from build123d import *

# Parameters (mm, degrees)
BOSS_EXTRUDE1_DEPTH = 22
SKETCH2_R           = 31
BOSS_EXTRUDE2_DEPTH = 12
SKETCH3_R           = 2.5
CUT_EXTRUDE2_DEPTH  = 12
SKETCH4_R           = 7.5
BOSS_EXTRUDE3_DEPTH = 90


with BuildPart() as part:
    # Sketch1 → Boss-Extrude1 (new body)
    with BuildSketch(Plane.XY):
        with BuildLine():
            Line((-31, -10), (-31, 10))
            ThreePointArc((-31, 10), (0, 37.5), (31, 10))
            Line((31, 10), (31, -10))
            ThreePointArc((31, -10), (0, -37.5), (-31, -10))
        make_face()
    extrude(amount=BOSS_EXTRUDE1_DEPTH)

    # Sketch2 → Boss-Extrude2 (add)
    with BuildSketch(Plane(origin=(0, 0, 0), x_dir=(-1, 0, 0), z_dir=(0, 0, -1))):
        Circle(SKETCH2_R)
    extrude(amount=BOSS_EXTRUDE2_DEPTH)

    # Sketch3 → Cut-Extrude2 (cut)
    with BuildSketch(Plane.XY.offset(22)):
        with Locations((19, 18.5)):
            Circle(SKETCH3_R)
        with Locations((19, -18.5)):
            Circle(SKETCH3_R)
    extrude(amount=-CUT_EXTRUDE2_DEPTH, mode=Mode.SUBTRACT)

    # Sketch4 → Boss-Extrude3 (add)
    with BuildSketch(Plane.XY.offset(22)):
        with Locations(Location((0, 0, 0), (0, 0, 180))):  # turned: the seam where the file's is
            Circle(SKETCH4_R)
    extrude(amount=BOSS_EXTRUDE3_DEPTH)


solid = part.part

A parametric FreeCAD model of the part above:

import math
import FreeCAD as App
import Part
import Sketcher
from FreeCAD import Vector
Q = App.Units.Quantity

doc = App.newDocument("Part")
params = doc.addObject("Spreadsheet::Sheet", "Params")
for row, (alias, value) in enumerate([
    ("sketch1_height", "20 mm"),
    ("pad1_length", "22 mm"),
    ("sketch2_diameter", "62 mm"),
    ("pad2_length", "12 mm"),
    ("sketch3_diameter", "5 mm"),
    ("pocket1_length", "12 mm"),
    ("sketch4_diameter", "15 mm"),
    ("pad3_length", "90 mm"),
], start=1):
    params.set(f"A{row}", alias)
    params.set(f"B{row}", "=" + value)
    params.setAlias(f"B{row}", alias)

body = doc.addObject("PartDesign::Body", "Body")

# Sketch on XY plane
sketch1 = body.newObject("Sketcher::SketchObject", "Sketch")
sketch1.AttachmentSupport = (doc.getObject("XY_Plane"), [""])
sketch1.MapMode = "FlatFace"
sketch1.addGeometry(Part.LineSegment(Vector(-31, 10, 0), Vector(-31, -10, 0)), False)
sketch1.addGeometry(Part.ArcOfCircle(Part.Circle(Vector(0, -6, 0), Vector(0, 0, 1), 31), math.radians(-173), math.radians(-7)), False)
sketch1.addGeometry(Part.LineSegment(Vector(31, -10, 0), Vector(31, 10, 0)), False)
sketch1.addGeometry(Part.ArcOfCircle(Part.Circle(Vector(0, 6, 0), Vector(0, 0, 1), 31), math.radians(7), math.radians(173)), False)
sketch1.addConstraint(Sketcher.Constraint("Coincident", 0, 2, 1, 1))
sketch1.addConstraint(Sketcher.Constraint("Coincident", 1, 2, 2, 1))
sketch1.addConstraint(Sketcher.Constraint("Coincident", 2, 2, 3, 1))
sketch1.addConstraint(Sketcher.Constraint("Coincident", 3, 2, 0, 1))
sketch1.addConstraint(Sketcher.Constraint("Vertical", 0))
sketch1.addConstraint(Sketcher.Constraint("Vertical", 2))
sketch1.addConstraint(Sketcher.Constraint("Equal", 1, 3))
sketch1.addConstraint(Sketcher.Constraint("Symmetric", 1, 3, 3, 3, -1, 1))
sketch1.addConstraint(Sketcher.Constraint("Symmetric", 0, 2, 1, 2, -2))
sketch1.addConstraint(Sketcher.Constraint("DistanceY", 0, 2, 0, 1, Q("20 mm")))
sketch1.addConstraint(Sketcher.Constraint("DistanceX", 0, 2, -1, 1, Q("31 mm")))
sketch1.addConstraint(Sketcher.Constraint("Radius", 1, Q("31.222727 mm")))
sketch1.setExpression("Constraints[9]", "Params.sketch1_height")
pad1 = body.newObject("PartDesign::Pad", "Pad")
pad1.Profile = sketch1
pad1.setExpression("Length", "Params.pad1_length")

# Sketch on XY plane
sketch2 = body.newObject("Sketcher::SketchObject", "Sketch001")
sketch2.AttachmentSupport = (doc.getObject("XY_Plane"), [""])
sketch2.MapMode = "FlatFace"
sketch2.addGeometry(Part.Circle(Vector(0, 0, 0), Vector(0, 0, 1), 31), False)
sketch2.addConstraint(Sketcher.Constraint("Coincident", 0, 3, -1, 1))
sketch2.addConstraint(Sketcher.Constraint("Diameter", 0, Q("62 mm")))
sketch2.setExpression("Constraints[1]", "Params.sketch2_diameter")
pad2 = body.newObject("PartDesign::Pad", "Pad001")
pad2.Profile = sketch2
pad2.setExpression("Length", "Params.pad2_length")
pad2.Reversed = True

# Sketch on XY plane
sketch3 = body.newObject("Sketcher::SketchObject", "Sketch002")
sketch3.AttachmentSupport = (doc.getObject("XY_Plane"), [""])
sketch3.MapMode = "FlatFace"
sketch3.AttachmentOffset = App.Placement(Vector(0, 0, 22), App.Rotation())
sketch3.addGeometry(Part.Circle(Vector(19, 18.5, 0), Vector(0, 0, 1), 2.5), False)
sketch3.addGeometry(Part.Circle(Vector(19, -18.5, 0), Vector(0, 0, 1), 2.5), False)
sketch3.addConstraint(Sketcher.Constraint("Equal", 0, 1))
sketch3.addConstraint(Sketcher.Constraint("Symmetric", 0, 3, 1, 3, -1))
sketch3.addConstraint(Sketcher.Constraint("Diameter", 0, Q("5 mm")))
sketch3.addConstraint(Sketcher.Constraint("DistanceX", -1, 1, 0, 3, Q("19 mm")))
sketch3.addConstraint(Sketcher.Constraint("DistanceY", 1, 3, 0, 3, Q("37 mm")))
sketch3.setExpression("Constraints[2]", "Params.sketch3_diameter")
pocket1 = body.newObject("PartDesign::Pocket", "Pocket")
pocket1.Profile = sketch3
pocket1.setExpression("Length", "Params.pocket1_length")

# Sketch on XY plane
sketch4 = body.newObject("Sketcher::SketchObject", "Sketch003")
sketch4.AttachmentSupport = (doc.getObject("XY_Plane"), [""])
sketch4.MapMode = "FlatFace"
sketch4.AttachmentOffset = App.Placement(Vector(0, 0, 22), App.Rotation())
sketch4.addGeometry(Part.Circle(Vector(0, 0, 0), Vector(0, 0, 1), 8), False)
sketch4.addConstraint(Sketcher.Constraint("Coincident", 0, 3, -1, 1))
sketch4.addConstraint(Sketcher.Constraint("Diameter", 0, Q("15 mm")))
sketch4.setExpression("Constraints[1]", "Params.sketch4_diameter")
pad3 = body.newObject("PartDesign::Pad", "Pad002")
pad3.Profile = sketch4
pad3.setExpression("Length", "Params.pad3_length")

doc.recompute()
